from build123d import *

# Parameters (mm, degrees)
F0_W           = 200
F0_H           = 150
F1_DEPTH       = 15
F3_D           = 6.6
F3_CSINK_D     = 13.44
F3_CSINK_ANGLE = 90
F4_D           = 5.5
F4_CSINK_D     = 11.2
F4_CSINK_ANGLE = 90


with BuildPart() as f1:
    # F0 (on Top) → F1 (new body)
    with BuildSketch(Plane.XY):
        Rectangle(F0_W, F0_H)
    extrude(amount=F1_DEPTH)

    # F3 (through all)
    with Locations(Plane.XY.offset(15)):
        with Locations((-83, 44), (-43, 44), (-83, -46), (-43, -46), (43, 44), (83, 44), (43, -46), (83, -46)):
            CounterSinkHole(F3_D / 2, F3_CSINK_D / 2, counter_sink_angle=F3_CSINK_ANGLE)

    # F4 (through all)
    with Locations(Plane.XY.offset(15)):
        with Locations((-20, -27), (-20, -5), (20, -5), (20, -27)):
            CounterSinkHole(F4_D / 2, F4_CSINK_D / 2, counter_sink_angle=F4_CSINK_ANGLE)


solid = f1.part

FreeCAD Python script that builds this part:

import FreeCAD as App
import Part
import Sketcher
from FreeCAD import Vector

doc = App.newDocument("Part")
body = doc.addObject("PartDesign::Body", "Body")

sketch1 = body.newObject("Sketcher::SketchObject", "Sketch")
sketch1.AttachmentSupport = (doc.getObject("XY_Plane"), [""])
sketch1.MapMode = "FlatFace"
sketch1.addGeometry([
    Part.LineSegment(Vector(-100, 75, 0), Vector(-100, -75, 0)),
    Part.LineSegment(Vector(-100, -75, 0), Vector(100, -75, 0)),
    Part.LineSegment(Vector(100, -75, 0), Vector(100, 75, 0)),
    Part.LineSegment(Vector(100, 75, 0), Vector(-100, 75, 0)),
], False)
sketch1.addConstraint([
    Sketcher.Constraint("Coincident", 0, 2, 1, 1),
    Sketcher.Constraint("Coincident", 1, 2, 2, 1),
    Sketcher.Constraint("Coincident", 2, 2, 3, 1),
    Sketcher.Constraint("Coincident", 3, 2, 0, 1),
    Sketcher.Constraint("Vertical", 0),
    Sketcher.Constraint("Horizontal", 1),
    Sketcher.Constraint("Vertical", 2),
    Sketcher.Constraint("Horizontal", 3),
    Sketcher.Constraint("Symmetric", 0, 2, 2, 2, -1, 1),
    Sketcher.Constraint("DistanceX", 1, 1, 1, 2, 200.0),
    Sketcher.Constraint("DistanceY", 0, 2, 0, 1, 150.0),
])
pad1 = body.newObject("PartDesign::Pad", "Pad")
pad1.Profile = sketch1
pad1.Length = 15

sketch2 = body.newObject("Sketcher::SketchObject", "Sketch001")
sketch2.AttachmentSupport = (doc.getObject("XY_Plane"), [""])
sketch2.MapMode = "FlatFace"
sketch2.AttachmentOffset = App.Placement(Vector(0, 0, 15), App.Rotation())
sketch2.addGeometry([
    Part.Circle(Vector(-83, 44, 0), Vector(0, 0, 1), 3.3),
    Part.Circle(Vector(-43, 44, 0), Vector(0, 0, 1), 3.3),
    Part.Circle(Vector(-83, -46, 0), Vector(0, 0, 1), 3.3),
    Part.Circle(Vector(-43, -46, 0), Vector(0, 0, 1), 3.3),
    Part.Circle(Vector(43, 44, 0), Vector(0, 0, 1), 3.3),
    Part.Circle(Vector(83, 44, 0), Vector(0, 0, 1), 3.3),
    Part.Circle(Vector(43, -46, 0), Vector(0, 0, 1), 3.3),
    Part.Circle(Vector(83, -46, 0), Vector(0, 0, 1), 3.3),
], False)
sketch2.addConstraint([
    Sketcher.Constraint("Equal", 0, 1),
    Sketcher.Constraint("Equal", 1, 2),
    Sketcher.Constraint("Equal", 2, 3),
    Sketcher.Constraint("Equal", 3, 4),
    Sketcher.Constraint("Equal", 4, 5),
    Sketcher.Constraint("Equal", 5, 6),
    Sketcher.Constraint("Equal", 6, 7),
    Sketcher.Constraint("Symmetric", 1, 3, 4, 3, -2),
    Sketcher.Constraint("Symmetric", 0, 3, 5, 3, -2),
    Sketcher.Constraint("Symmetric", 3, 3, 6, 3, -2),
    Sketcher.Constraint("Symmetric", 2, 3, 7, 3, -2),
    Sketcher.Constraint("Horizontal", 0, 3, 1, 3),
    Sketcher.Constraint("Horizontal", 2, 3, 3, 3),
    Sketcher.Constraint("Vertical", 0, 3, 2, 3),
    Sketcher.Constraint("Vertical", 1, 3, 3, 3),
    Sketcher.Constraint("Diameter", 0, 6.6),
    Sketcher.Constraint("DistanceX", 0, 3, -1, 1, 83.0),
    Sketcher.Constraint("DistanceY", -1, 1, 0, 3, 44.0),
    Sketcher.Constraint("DistanceX", 1, 3, -1, 1, 43.0),
    Sketcher.Constraint("DistanceY", 2, 3, -1, 1, 46.0),
])
doc.recompute()
hole = body.newObject("PartDesign::Hole", "Hole")
hole.Profile = sketch2
hole.ThreadType = "None"
hole.Diameter = 6.6
hole.DepthType = "ThroughAll"
hole.HoleCutType = "Countersink"
hole.HoleCutDiameter = 13.44
hole.HoleCutCountersinkAngle = 90

sketch3 = body.newObject("Sketcher::SketchObject", "Sketch002")
sketch3.AttachmentSupport = (doc.getObject("XY_Plane"), [""])
sketch3.MapMode = "FlatFace"
sketch3.AttachmentOffset = App.Placement(Vector(0, 0, 15), App.Rotation())
sketch3.addGeometry([
    Part.Circle(Vector(-20, -27, 0), Vector(0, 0, 1), 2.8),
    Part.Circle(Vector(-20, -5, 0), Vector(0, 0, 1), 2.8),
    Part.Circle(Vector(20, -5, 0), Vector(0, 0, 1), 2.8),
    Part.Circle(Vector(20, -27, 0), Vector(0, 0, 1), 2.8),
], False)
sketch3.addConstraint([
    Sketcher.Constraint("Equal", 0, 1),
    Sketcher.Constraint("Equal", 1, 2),
    Sketcher.Constraint("Equal", 2, 3),
    Sketcher.Constraint("Symmetric", 1, 3, 2, 3, -2),
    Sketcher.Constraint("Symmetric", 0, 3, 3, 3, -2),
    Sketcher.Constraint("Vertical", 0, 3, 1, 3),
    Sketcher.Constraint("Diameter", 0, 5.5),
    Sketcher.Constraint("DistanceX", 0, 3, -1, 1, 20.0),
    Sketcher.Constraint("DistanceY", 0, 3, -1, 1, 27.0),
    Sketcher.Constraint("DistanceY", 1, 3, -1, 1, 5.0),
])
doc.recompute()
hole2 = body.newObject("PartDesign::Hole", "Hole001")
hole2.Profile = sketch3
hole2.ThreadType = "None"
hole2.Diameter = 5.5
hole2.DepthType = "ThroughAll"
hole2.HoleCutType = "Countersink"
hole2.HoleCutDiameter = 11.2
hole2.HoleCutCountersinkAngle = 90

doc.recompute()
